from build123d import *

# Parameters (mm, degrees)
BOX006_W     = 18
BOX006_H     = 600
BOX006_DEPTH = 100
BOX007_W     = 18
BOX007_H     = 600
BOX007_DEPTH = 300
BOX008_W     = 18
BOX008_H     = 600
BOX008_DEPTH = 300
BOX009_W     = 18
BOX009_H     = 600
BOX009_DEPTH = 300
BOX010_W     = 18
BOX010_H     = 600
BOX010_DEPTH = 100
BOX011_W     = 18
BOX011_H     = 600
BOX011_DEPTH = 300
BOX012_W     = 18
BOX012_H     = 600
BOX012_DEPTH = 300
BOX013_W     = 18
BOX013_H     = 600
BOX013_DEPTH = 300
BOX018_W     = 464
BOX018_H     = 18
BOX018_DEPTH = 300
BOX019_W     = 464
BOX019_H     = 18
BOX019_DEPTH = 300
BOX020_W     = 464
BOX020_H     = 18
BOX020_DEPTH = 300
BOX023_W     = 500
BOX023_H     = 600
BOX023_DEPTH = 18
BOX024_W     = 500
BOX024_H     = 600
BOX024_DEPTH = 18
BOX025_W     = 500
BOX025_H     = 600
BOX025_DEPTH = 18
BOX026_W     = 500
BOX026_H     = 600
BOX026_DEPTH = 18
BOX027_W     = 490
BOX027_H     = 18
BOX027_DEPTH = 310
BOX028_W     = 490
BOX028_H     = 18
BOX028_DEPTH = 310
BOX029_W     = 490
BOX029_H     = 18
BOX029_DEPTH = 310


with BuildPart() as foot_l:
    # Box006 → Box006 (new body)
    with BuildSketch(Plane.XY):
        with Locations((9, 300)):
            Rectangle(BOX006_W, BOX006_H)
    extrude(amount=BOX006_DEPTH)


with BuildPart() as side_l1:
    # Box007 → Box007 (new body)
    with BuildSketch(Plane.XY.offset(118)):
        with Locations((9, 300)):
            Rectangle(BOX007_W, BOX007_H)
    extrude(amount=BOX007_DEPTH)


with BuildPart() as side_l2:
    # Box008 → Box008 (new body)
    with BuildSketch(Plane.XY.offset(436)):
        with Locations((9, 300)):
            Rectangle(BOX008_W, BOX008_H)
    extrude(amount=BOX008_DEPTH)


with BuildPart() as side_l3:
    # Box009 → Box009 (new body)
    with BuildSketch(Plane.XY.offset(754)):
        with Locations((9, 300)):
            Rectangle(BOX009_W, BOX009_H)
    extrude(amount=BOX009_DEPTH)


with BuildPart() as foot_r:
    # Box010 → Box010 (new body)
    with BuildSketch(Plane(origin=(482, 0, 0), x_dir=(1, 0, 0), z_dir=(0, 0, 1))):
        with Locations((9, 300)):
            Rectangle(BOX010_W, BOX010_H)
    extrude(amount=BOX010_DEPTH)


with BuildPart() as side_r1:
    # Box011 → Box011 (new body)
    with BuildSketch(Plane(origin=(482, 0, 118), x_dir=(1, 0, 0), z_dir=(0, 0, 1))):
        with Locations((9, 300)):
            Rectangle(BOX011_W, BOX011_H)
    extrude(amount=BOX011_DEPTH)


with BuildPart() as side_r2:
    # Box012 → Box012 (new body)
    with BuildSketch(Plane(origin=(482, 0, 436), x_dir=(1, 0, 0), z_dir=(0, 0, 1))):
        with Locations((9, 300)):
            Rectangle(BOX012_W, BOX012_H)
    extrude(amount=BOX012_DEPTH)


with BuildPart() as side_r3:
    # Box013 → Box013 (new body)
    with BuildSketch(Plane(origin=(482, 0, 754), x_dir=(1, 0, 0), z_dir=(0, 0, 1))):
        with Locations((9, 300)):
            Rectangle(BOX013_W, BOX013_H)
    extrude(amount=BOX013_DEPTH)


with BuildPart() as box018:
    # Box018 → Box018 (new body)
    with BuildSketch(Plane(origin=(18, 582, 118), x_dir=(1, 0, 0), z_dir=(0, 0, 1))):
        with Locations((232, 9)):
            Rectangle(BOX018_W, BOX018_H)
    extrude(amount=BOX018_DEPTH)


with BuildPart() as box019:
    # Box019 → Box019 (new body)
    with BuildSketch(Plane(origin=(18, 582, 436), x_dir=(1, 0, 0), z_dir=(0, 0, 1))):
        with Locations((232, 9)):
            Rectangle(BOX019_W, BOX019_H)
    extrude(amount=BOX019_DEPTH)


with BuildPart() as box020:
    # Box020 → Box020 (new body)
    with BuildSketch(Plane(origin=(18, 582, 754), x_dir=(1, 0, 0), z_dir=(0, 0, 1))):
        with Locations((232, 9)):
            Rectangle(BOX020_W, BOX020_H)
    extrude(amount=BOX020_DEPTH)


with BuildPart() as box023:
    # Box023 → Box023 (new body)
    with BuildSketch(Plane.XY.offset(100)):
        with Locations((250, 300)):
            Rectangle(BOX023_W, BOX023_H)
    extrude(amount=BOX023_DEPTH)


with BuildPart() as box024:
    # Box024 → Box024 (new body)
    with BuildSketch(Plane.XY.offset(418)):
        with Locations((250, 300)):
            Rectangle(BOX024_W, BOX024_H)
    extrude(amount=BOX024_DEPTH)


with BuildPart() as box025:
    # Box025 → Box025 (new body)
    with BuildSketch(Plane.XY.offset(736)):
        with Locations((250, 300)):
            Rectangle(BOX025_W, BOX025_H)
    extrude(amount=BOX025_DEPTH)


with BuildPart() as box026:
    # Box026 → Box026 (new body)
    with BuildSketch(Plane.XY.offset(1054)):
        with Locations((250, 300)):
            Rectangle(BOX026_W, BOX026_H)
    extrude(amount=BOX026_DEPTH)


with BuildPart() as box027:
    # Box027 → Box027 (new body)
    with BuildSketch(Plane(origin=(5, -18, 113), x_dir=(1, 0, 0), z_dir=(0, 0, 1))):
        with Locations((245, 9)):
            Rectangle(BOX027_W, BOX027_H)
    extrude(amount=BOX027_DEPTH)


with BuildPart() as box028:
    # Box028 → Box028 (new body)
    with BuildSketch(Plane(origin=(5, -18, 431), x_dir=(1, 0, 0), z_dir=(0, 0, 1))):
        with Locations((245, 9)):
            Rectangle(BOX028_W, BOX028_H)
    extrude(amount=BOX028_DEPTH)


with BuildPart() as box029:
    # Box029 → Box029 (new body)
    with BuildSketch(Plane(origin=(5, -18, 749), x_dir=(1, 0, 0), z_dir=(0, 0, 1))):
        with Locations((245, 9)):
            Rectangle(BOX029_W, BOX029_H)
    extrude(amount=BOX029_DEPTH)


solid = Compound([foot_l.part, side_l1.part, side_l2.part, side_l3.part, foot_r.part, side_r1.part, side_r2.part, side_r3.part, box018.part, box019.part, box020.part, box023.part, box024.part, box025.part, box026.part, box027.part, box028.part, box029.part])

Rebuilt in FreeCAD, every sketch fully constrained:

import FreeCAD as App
import Part
import Sketcher
from FreeCAD import Vector


def add_polygon(sketch, points):
    """Adds a closed chain of lines whose ends are joined by coincident constraints."""
    first, n = sketch.GeometryCount, len(points)
    for a, b in zip(points, points[1:] + points[:1]):
        sketch.addGeometry(Part.LineSegment(App.Vector(*a, 0), App.Vector(*b, 0)), False)
    for i in range(n):
        sketch.addConstraint(Sketcher.Constraint("Coincident", first + i, 2, first + (i + 1) % n, 1))

doc = App.newDocument("Part")
body = doc.addObject("PartDesign::Body", "Body")

# Sketch on XY plane
sketch1 = body.newObject("Sketcher::SketchObject", "Sketch")
sketch1.AttachmentSupport = (doc.getObject("XY_Plane"), [""])
sketch1.MapMode = "FlatFace"
add_polygon(sketch1, [(0, 600), (0, 0), (18, 0), (18, 600)])  # lines 0-3
sketch1.addConstraint(Sketcher.Constraint("Vertical", 0))
sketch1.addConstraint(Sketcher.Constraint("Horizontal", 1))
sketch1.addConstraint(Sketcher.Constraint("Vertical", 2))
sketch1.addConstraint(Sketcher.Constraint("Horizontal", 3))
sketch1.addConstraint(Sketcher.Constraint("Coincident", 0, 2, -1, 1))
sketch1.addConstraint(Sketcher.Constraint("DistanceX", 1, 1, 1, 2, 18.0))
sketch1.addConstraint(Sketcher.Constraint("DistanceY", 0, 2, 0, 1, 600.0))
pad1 = body.newObject("PartDesign::Pad", "Pad")
pad1.Profile = sketch1
pad1.Length = 100
body2 = doc.addObject("PartDesign::Body", "Body001")

# Sketch on XY plane
sketch2 = body2.newObject("Sketcher::SketchObject", "Sketch001")
sketch2.AttachmentSupport = (doc.getObject("XY_Plane001"), [""])
sketch2.MapMode = "FlatFace"
sketch2.AttachmentOffset = App.Placement(Vector(0, 0, 118), App.Rotation())
add_polygon(sketch2, [(0, 600), (0, 0), (18, 0), (18, 600)])  # lines 0-3
sketch2.addConstraint(Sketcher.Constraint("Vertical", 0))
sketch2.addConstraint(Sketcher.Constraint("Horizontal", 1))
sketch2.addConstraint(Sketcher.Constraint("Vertical", 2))
sketch2.addConstraint(Sketcher.Constraint("Horizontal", 3))
sketch2.addConstraint(Sketcher.Constraint("Coincident", 0, 2, -1, 1))
sketch2.addConstraint(Sketcher.Constraint("DistanceX", 1, 1, 1, 2, 18.0))
sketch2.addConstraint(Sketcher.Constraint("DistanceY", 0, 2, 0, 1, 600.0))
pad2 = body2.newObject("PartDesign::Pad", "Pad001")
pad2.Profile = sketch2
pad2.Length = 300
body3 = doc.addObject("PartDesign::Body", "Body002")

# Sketch on XY plane
sketch3 = body3.newObject("Sketcher::SketchObject", "Sketch002")
sketch3.AttachmentSupport = (doc.getObject("XY_Plane002"), [""])
sketch3.MapMode = "FlatFace"
sketch3.AttachmentOffset = App.Placement(Vector(0, 0, 436), App.Rotation())
add_polygon(sketch3, [(0, 600), (0, 0), (18, 0), (18, 600)])  # lines 0-3
sketch3.addConstraint(Sketcher.Constraint("Vertical", 0))
sketch3.addConstraint(Sketcher.Constraint("Horizontal", 1))
sketch3.addConstraint(Sketcher.Constraint("Vertical", 2))
sketch3.addConstraint(Sketcher.Constraint("Horizontal", 3))
sketch3.addConstraint(Sketcher.Constraint("Coincident", 0, 2, -1, 1))
sketch3.addConstraint(Sketcher.Constraint("DistanceX", 1, 1, 1, 2, 18.0))
sketch3.addConstraint(Sketcher.Constraint("DistanceY", 0, 2, 0, 1, 600.0))
pad3 = body3.newObject("PartDesign::Pad", "Pad002")
pad3.Profile = sketch3
pad3.Length = 300
body4 = doc.addObject("PartDesign::Body", "Body003")

# Sketch on XY plane
sketch4 = body4.newObject("Sketcher::SketchObject", "Sketch003")
sketch4.AttachmentSupport = (doc.getObject("XY_Plane003"), [""])
sketch4.MapMode = "FlatFace"
sketch4.AttachmentOffset = App.Placement(Vector(0, 0, 754), App.Rotation())
add_polygon(sketch4, [(0, 600), (0, 0), (18, 0), (18, 600)])  # lines 0-3
sketch4.addConstraint(Sketcher.Constraint("Vertical", 0))
sketch4.addConstraint(Sketcher.Constraint("Horizontal", 1))
sketch4.addConstraint(Sketcher.Constraint("Vertical", 2))
sketch4.addConstraint(Sketcher.Constraint("Horizontal", 3))
sketch4.addConstraint(Sketcher.Constraint("Coincident", 0, 2, -1, 1))
sketch4.addConstraint(Sketcher.Constraint("DistanceX", 1, 1, 1, 2, 18.0))
sketch4.addConstraint(Sketcher.Constraint("DistanceY", 0, 2, 0, 1, 600.0))
pad4 = body4.newObject("PartDesign::Pad", "Pad003")
pad4.Profile = sketch4
pad4.Length = 300
body5 = doc.addObject("PartDesign::Body", "Body004")

# Sketch on XY plane
sketch5 = body5.newObject("Sketcher::SketchObject", "Sketch004")
sketch5.AttachmentSupport = (doc.getObject("XY_Plane004"), [""])
sketch5.MapMode = "FlatFace"
add_polygon(sketch5, [(482, 600), (482, 0), (500, 0), (500, 600)])  # lines 0-3
sketch5.addConstraint(Sketcher.Constraint("Vertical", 0))
sketch5.addConstraint(Sketcher.Constraint("Horizontal", 1))
sketch5.addConstraint(Sketcher.Constraint("Vertical", 2))
sketch5.addConstraint(Sketcher.Constraint("Horizontal", 3))
sketch5.addConstraint(Sketcher.Constraint("PointOnObject", 0, 2, -1))
sketch5.addConstraint(Sketcher.Constraint("DistanceX", 1, 1, 1, 2, 18.0))
sketch5.addConstraint(Sketcher.Constraint("DistanceY", 0, 2, 0, 1, 600.0))
sketch5.addConstraint(Sketcher.Constraint("DistanceX", -1, 1, 0, 2, 482.0))
pad5 = body5.newObject("PartDesign::Pad", "Pad004")
pad5.Profile = sketch5
pad5.Length = 100
body6 = doc.addObject("PartDesign::Body", "Body005")

# Sketch on XY plane
sketch6 = body6.newObject("Sketcher::SketchObject", "Sketch005")
sketch6.AttachmentSupport = (doc.getObject("XY_Plane005"), [""])
sketch6.MapMode = "FlatFace"
sketch6.AttachmentOffset = App.Placement(Vector(0, 0, 118), App.Rotation())
add_polygon(sketch6, [(482, 600), (482, 0), (500, 0), (500, 600)])  # lines 0-3
sketch6.addConstraint(Sketcher.Constraint("Vertical", 0))
sketch6.addConstraint(Sketcher.Constraint("Horizontal", 1))
sketch6.addConstraint(Sketcher.Constraint("Vertical", 2))
sketch6.addConstraint(Sketcher.Constraint("Horizontal", 3))
sketch6.addConstraint(Sketcher.Constraint("PointOnObject", 0, 2, -1))
sketch6.addConstraint(Sketcher.Constraint("DistanceX", 1, 1, 1, 2, 18.0))
sketch6.addConstraint(Sketcher.Constraint("DistanceY", 0, 2, 0, 1, 600.0))
sketch6.addConstraint(Sketcher.Constraint("DistanceX", -1, 1, 0, 2, 482.0))
pad6 = body6.newObject("PartDesign::Pad", "Pad005")
pad6.Profile = sketch6
pad6.Length = 300
body7 = doc.addObject("PartDesign::Body", "Body006")

# Sketch on XY plane
sketch7 = body7.newObject("Sketcher::SketchObject", "Sketch006")
sketch7.AttachmentSupport = (doc.getObject("XY_Plane006"), [""])
sketch7.MapMode = "FlatFace"
sketch7.AttachmentOffset = App.Placement(Vector(0, 0, 436), App.Rotation())
add_polygon(sketch7, [(482, 600), (482, 0), (500, 0), (500, 600)])  # lines 0-3
sketch7.addConstraint(Sketcher.Constraint("Vertical", 0))
sketch7.addConstraint(Sketcher.Constraint("Horizontal", 1))
sketch7.addConstraint(Sketcher.Constraint("Vertical", 2))
sketch7.addConstraint(Sketcher.Constraint("Horizontal", 3))
sketch7.addConstraint(Sketcher.Constraint("PointOnObject", 0, 2, -1))
sketch7.addConstraint(Sketcher.Constraint("DistanceX", 1, 1, 1, 2, 18.0))
sketch7.addConstraint(Sketcher.Constraint("DistanceY", 0, 2, 0, 1, 600.0))
sketch7.addConstraint(Sketcher.Constraint("DistanceX", -1, 1, 0, 2, 482.0))
pad7 = body7.newObject("PartDesign::Pad", "Pad006")
pad7.Profile = sketch7
pad7.Length = 300
body8 = doc.addObject("PartDesign::Body", "Body007")

# Sketch on XY plane
sketch8 = body8.newObject("Sketcher::SketchObject", "Sketch007")
sketch8.AttachmentSupport = (doc.getObject("XY_Plane007"), [""])
sketch8.MapMode = "FlatFace"
sketch8.AttachmentOffset = App.Placement(Vector(0, 0, 754), App.Rotation())
add_polygon(sketch8, [(482, 600), (482, 0), (500, 0), (500, 600)])  # lines 0-3
sketch8.addConstraint(Sketcher.Constraint("Vertical", 0))
sketch8.addConstraint(Sketcher.Constraint("Horizontal", 1))
sketch8.addConstraint(Sketcher.Constraint("Vertical", 2))
sketch8.addConstraint(Sketcher.Constraint("Horizontal", 3))
sketch8.addConstraint(Sketcher.Constraint("PointOnObject", 0, 2, -1))
sketch8.addConstraint(Sketcher.Constraint("DistanceX", 1, 1, 1, 2, 18.0))
sketch8.addConstraint(Sketcher.Constraint("DistanceY", 0, 2, 0, 1, 600.0))
sketch8.addConstraint(Sketcher.Constraint("DistanceX", -1, 1, 0, 2, 482.0))
pad8 = body8.newObject("PartDesign::Pad", "Pad007")
pad8.Profile = sketch8
pad8.Length = 300
body9 = doc.addObject("PartDesign::Body", "Body008")

# Sketch on XY plane
sketch9 = body9.newObject("Sketcher::SketchObject", "Sketch008")
sketch9.AttachmentSupport = (doc.getObject("XY_Plane008"), [""])
sketch9.MapMode = "FlatFace"
sketch9.AttachmentOffset = App.Placement(Vector(0, 0, 118), App.Rotation())
add_polygon(sketch9, [(18, 600), (18, 582), (482, 582), (482, 600)])  # lines 0-3
sketch9.addConstraint(Sketcher.Constraint("Vertical", 0))
sketch9.addConstraint(Sketcher.Constraint("Horizontal", 1))
sketch9.addConstraint(Sketcher.Constraint("Vertical", 2))
sketch9.addConstraint(Sketcher.Constraint("Horizontal", 3))
sketch9.addConstraint(Sketcher.Constraint("DistanceX", 1, 1, 1, 2, 464.0))
sketch9.addConstraint(Sketcher.Constraint("DistanceY", 0, 2, 0, 1, 18.0))
sketch9.addConstraint(Sketcher.Constraint("DistanceX", -1, 1, 0, 2, 18.0))
sketch9.addConstraint(Sketcher.Constraint("DistanceY", -1, 1, 0, 2, 582.0))
pad9 = body9.newObject("PartDesign::Pad", "Pad008")
pad9.Profile = sketch9
pad9.Length = 300
body10 = doc.addObject("PartDesign::Body", "Body009")

# Sketch on XY plane
sketch10 = body10.newObject("Sketcher::SketchObject", "Sketch009")
sketch10.AttachmentSupport = (doc.getObject("XY_Plane009"), [""])
sketch10.MapMode = "FlatFace"
sketch10.AttachmentOffset = App.Placement(Vector(0, 0, 436), App.Rotation())
add_polygon(sketch10, [(18, 600), (18, 582), (482, 582), (482, 600)])  # lines 0-3
sketch10.addConstraint(Sketcher.Constraint("Vertical", 0))
sketch10.addConstraint(Sketcher.Constraint("Horizontal", 1))
sketch10.addConstraint(Sketcher.Constraint("Vertical", 2))
sketch10.addConstraint(Sketcher.Constraint("Horizontal", 3))
sketch10.addConstraint(Sketcher.Constraint("DistanceX", 1, 1, 1, 2, 464.0))
sketch10.addConstraint(Sketcher.Constraint("DistanceY", 0, 2, 0, 1, 18.0))
sketch10.addConstraint(Sketcher.Constraint("DistanceX", -1, 1, 0, 2, 18.0))
sketch10.addConstraint(Sketcher.Constraint("DistanceY", -1, 1, 0, 2, 582.0))
pad10 = body10.newObject("PartDesign::Pad", "Pad009")
pad10.Profile = sketch10
pad10.Length = 300
body11 = doc.addObject("PartDesign::Body", "Body010")

# Sketch on XY plane
sketch11 = body11.newObject("Sketcher::SketchObject", "Sketch010")
sketch11.AttachmentSupport = (doc.getObject("XY_Plane010"), [""])
sketch11.MapMode = "FlatFace"
sketch11.AttachmentOffset = App.Placement(Vector(0, 0, 754), App.Rotation())
add_polygon(sketch11, [(18, 600), (18, 582), (482, 582), (482, 600)])  # lines 0-3
sketch11.addConstraint(Sketcher.Constraint("Vertical", 0))
sketch11.addConstraint(Sketcher.Constraint("Horizontal", 1))
sketch11.addConstraint(Sketcher.Constraint("Vertical", 2))
sketch11.addConstraint(Sketcher.Constraint("Horizontal", 3))
sketch11.addConstraint(Sketcher.Constraint("DistanceX", 1, 1, 1, 2, 464.0))
sketch11.addConstraint(Sketcher.Constraint("DistanceY", 0, 2, 0, 1, 18.0))
sketch11.addConstraint(Sketcher.Constraint("DistanceX", -1, 1, 0, 2, 18.0))
sketch11.addConstraint(Sketcher.Constraint("DistanceY", -1, 1, 0, 2, 582.0))
pad11 = body11.newObject("PartDesign::Pad", "Pad010")
pad11.Profile = sketch11
pad11.Length = 300
body12 = doc.addObject("PartDesign::Body", "Body011")

# Sketch on XY plane
sketch12 = body12.newObject("Sketcher::SketchObject", "Sketch011")
sketch12.AttachmentSupport = (doc.getObject("XY_Plane011"), [""])
sketch12.MapMode = "FlatFace"
sketch12.AttachmentOffset = App.Placement(Vector(0, 0, 100), App.Rotation())
add_polygon(sketch12, [(0, 600), (0, 0), (500, 0), (500, 600)])  # lines 0-3
sketch12.addConstraint(Sketcher.Constraint("Vertical", 0))
sketch12.addConstraint(Sketcher.Constraint("Horizontal", 1))
sketch12.addConstraint(Sketcher.Constraint("Vertical", 2))
sketch12.addConstraint(Sketcher.Constraint("Horizontal", 3))
sketch12.addConstraint(Sketcher.Constraint("Coincident", 0, 2, -1, 1))
sketch12.addConstraint(Sketcher.Constraint("DistanceX", 1, 1, 1, 2, 500.0))
sketch12.addConstraint(Sketcher.Constraint("DistanceY", 0, 2, 0, 1, 600.0))
pad12 = body12.newObject("PartDesign::Pad", "Pad011")
pad12.Profile = sketch12
pad12.Length = 18
body13 = doc.addObject("PartDesign::Body", "Body012")

# Sketch on XY plane
sketch13 = body13.newObject("Sketcher::SketchObject", "Sketch012")
sketch13.AttachmentSupport = (doc.getObject("XY_Plane012"), [""])
sketch13.MapMode = "FlatFace"
sketch13.AttachmentOffset = App.Placement(Vector(0, 0, 418), App.Rotation())
add_polygon(sketch13, [(0, 600), (0, 0), (500, 0), (500, 600)])  # lines 0-3
sketch13.addConstraint(Sketcher.Constraint("Vertical", 0))
sketch13.addConstraint(Sketcher.Constraint("Horizontal", 1))
sketch13.addConstraint(Sketcher.Constraint("Vertical", 2))
sketch13.addConstraint(Sketcher.Constraint("Horizontal", 3))
sketch13.addConstraint(Sketcher.Constraint("Coincident", 0, 2, -1, 1))
sketch13.addConstraint(Sketcher.Constraint("DistanceX", 1, 1, 1, 2, 500.0))
sketch13.addConstraint(Sketcher.Constraint("DistanceY", 0, 2, 0, 1, 600.0))
pad13 = body13.newObject("PartDesign::Pad", "Pad012")
pad13.Profile = sketch13
pad13.Length = 18
body14 = doc.addObject("PartDesign::Body", "Body013")

# Sketch on XY plane
sketch14 = body14.newObject("Sketcher::SketchObject", "Sketch013")
sketch14.AttachmentSupport = (doc.getObject("XY_Plane013"), [""])
sketch14.MapMode = "FlatFace"
sketch14.AttachmentOffset = App.Placement(Vector(0, 0, 736), App.Rotation())
add_polygon(sketch14, [(0, 600), (0, 0), (500, 0), (500, 600)])  # lines 0-3
sketch14.addConstraint(Sketcher.Constraint("Vertical", 0))
sketch14.addConstraint(Sketcher.Constraint("Horizontal", 1))
sketch14.addConstraint(Sketcher.Constraint("Vertical", 2))
sketch14.addConstraint(Sketcher.Constraint("Horizontal", 3))
sketch14.addConstraint(Sketcher.Constraint("Coincident", 0, 2, -1, 1))
sketch14.addConstraint(Sketcher.Constraint("DistanceX", 1, 1, 1, 2, 500.0))
sketch14.addConstraint(Sketcher.Constraint("DistanceY", 0, 2, 0, 1, 600.0))
pad14 = body14.newObject("PartDesign::Pad", "Pad013")
pad14.Profile = sketch14
pad14.Length = 18
body15 = doc.addObject("PartDesign::Body", "Body014")

# Sketch on XY plane
sketch15 = body15.newObject("Sketcher::SketchObject", "Sketch014")
sketch15.AttachmentSupport = (doc.getObject("XY_Plane014"), [""])
sketch15.MapMode = "FlatFace"
sketch15.AttachmentOffset = App.Placement(Vector(0, 0, 1054), App.Rotation())
add_polygon(sketch15, [(0, 600), (0, 0), (500, 0), (500, 600)])  # lines 0-3
sketch15.addConstraint(Sketcher.Constraint("Vertical", 0))
sketch15.addConstraint(Sketcher.Constraint("Horizontal", 1))
sketch15.addConstraint(Sketcher.Constraint("Vertical", 2))
sketch15.addConstraint(Sketcher.Constraint("Horizontal", 3))
sketch15.addConstraint(Sketcher.Constraint("Coincident", 0, 2, -1, 1))
sketch15.addConstraint(Sketcher.Constraint("DistanceX", 1, 1, 1, 2, 500.0))
sketch15.addConstraint(Sketcher.Constraint("DistanceY", 0, 2, 0, 1, 600.0))
pad15 = body15.newObject("PartDesign::Pad", "Pad014")
pad15.Profile = sketch15
pad15.Length = 18
body16 = doc.addObject("PartDesign::Body", "Body015")

# Sketch on XY plane
sketch16 = body16.newObject("Sketcher::SketchObject", "Sketch015")
sketch16.AttachmentSupport = (doc.getObject("XY_Plane015"), [""])
sketch16.MapMode = "FlatFace"
sketch16.AttachmentOffset = App.Placement(Vector(0, 0, 113), App.Rotation())
add_polygon(sketch16, [(5, 0), (5, -18), (495, -18), (495, 0)])  # lines 0-3
sketch16.addConstraint(Sketcher.Constraint("Vertical", 0))
sketch16.addConstraint(Sketcher.Constraint("Horizontal", 1))
sketch16.addConstraint(Sketcher.Constraint("Vertical", 2))
sketch16.addConstraint(Sketcher.Constraint("Horizontal", 3))
sketch16.addConstraint(Sketcher.Constraint("PointOnObject", 2, 2, -1))
sketch16.addConstraint(Sketcher.Constraint("DistanceX", 1, 1, 1, 2, 490.0))
sketch16.addConstraint(Sketcher.Constraint("DistanceY", 0, 2, 0, 1, 18.0))
sketch16.addConstraint(Sketcher.Constraint("DistanceX", -1, 1, 0, 2, 5.0))
pad16 = body16.newObject("PartDesign::Pad", "Pad015")
pad16.Profile = sketch16
pad16.Length = 310
body17 = doc.addObject("PartDesign::Body", "Body016")

# Sketch on XY plane
sketch17 = body17.newObject("Sketcher::SketchObject", "Sketch016")
sketch17.AttachmentSupport = (doc.getObject("XY_Plane016"), [""])
sketch17.MapMode = "FlatFace"
sketch17.AttachmentOffset = App.Placement(Vector(0, 0, 431), App.Rotation())
add_polygon(sketch17, [(5, 0), (5, -18), (495, -18), (495, 0)])  # lines 0-3
sketch17.addConstraint(Sketcher.Constraint("Vertical", 0))
sketch17.addConstraint(Sketcher.Constraint("Horizontal", 1))
sketch17.addConstraint(Sketcher.Constraint("Vertical", 2))
sketch17.addConstraint(Sketcher.Constraint("Horizontal", 3))
sketch17.addConstraint(Sketcher.Constraint("PointOnObject", 2, 2, -1))
sketch17.addConstraint(Sketcher.Constraint("DistanceX", 1, 1, 1, 2, 490.0))
sketch17.addConstraint(Sketcher.Constraint("DistanceY", 0, 2, 0, 1, 18.0))
sketch17.addConstraint(Sketcher.Constraint("DistanceX", -1, 1, 0, 2, 5.0))
pad17 = body17.newObject("PartDesign::Pad", "Pad016")
pad17.Profile = sketch17
pad17.Length = 310
body18 = doc.addObject("PartDesign::Body", "Body017")

# Sketch on XY plane
sketch18 = body18.newObject("Sketcher::SketchObject", "Sketch017")
sketch18.AttachmentSupport = (doc.getObject("XY_Plane017"), [""])
sketch18.MapMode = "FlatFace"
sketch18.AttachmentOffset = App.Placement(Vector(0, 0, 749), App.Rotation())
add_polygon(sketch18, [(5, 0), (5, -18), (495, -18), (495, 0)])  # lines 0-3
sketch18.addConstraint(Sketcher.Constraint("Vertical", 0))
sketch18.addConstraint(Sketcher.Constraint("Horizontal", 1))
sketch18.addConstraint(Sketcher.Constraint("Vertical", 2))
sketch18.addConstraint(Sketcher.Constraint("Horizontal", 3))
sketch18.addConstraint(Sketcher.Constraint("PointOnObject", 2, 2, -1))
sketch18.addConstraint(Sketcher.Constraint("DistanceX", 1, 1, 1, 2, 490.0))
sketch18.addConstraint(Sketcher.Constraint("DistanceY", 0, 2, 0, 1, 18.0))
sketch18.addConstraint(Sketcher.Constraint("DistanceX", -1, 1, 0, 2, 5.0))
pad18 = body18.newObject("PartDesign::Pad", "Pad017")
pad18.Profile = sketch18
pad18.Length = 310

doc.recompute()
